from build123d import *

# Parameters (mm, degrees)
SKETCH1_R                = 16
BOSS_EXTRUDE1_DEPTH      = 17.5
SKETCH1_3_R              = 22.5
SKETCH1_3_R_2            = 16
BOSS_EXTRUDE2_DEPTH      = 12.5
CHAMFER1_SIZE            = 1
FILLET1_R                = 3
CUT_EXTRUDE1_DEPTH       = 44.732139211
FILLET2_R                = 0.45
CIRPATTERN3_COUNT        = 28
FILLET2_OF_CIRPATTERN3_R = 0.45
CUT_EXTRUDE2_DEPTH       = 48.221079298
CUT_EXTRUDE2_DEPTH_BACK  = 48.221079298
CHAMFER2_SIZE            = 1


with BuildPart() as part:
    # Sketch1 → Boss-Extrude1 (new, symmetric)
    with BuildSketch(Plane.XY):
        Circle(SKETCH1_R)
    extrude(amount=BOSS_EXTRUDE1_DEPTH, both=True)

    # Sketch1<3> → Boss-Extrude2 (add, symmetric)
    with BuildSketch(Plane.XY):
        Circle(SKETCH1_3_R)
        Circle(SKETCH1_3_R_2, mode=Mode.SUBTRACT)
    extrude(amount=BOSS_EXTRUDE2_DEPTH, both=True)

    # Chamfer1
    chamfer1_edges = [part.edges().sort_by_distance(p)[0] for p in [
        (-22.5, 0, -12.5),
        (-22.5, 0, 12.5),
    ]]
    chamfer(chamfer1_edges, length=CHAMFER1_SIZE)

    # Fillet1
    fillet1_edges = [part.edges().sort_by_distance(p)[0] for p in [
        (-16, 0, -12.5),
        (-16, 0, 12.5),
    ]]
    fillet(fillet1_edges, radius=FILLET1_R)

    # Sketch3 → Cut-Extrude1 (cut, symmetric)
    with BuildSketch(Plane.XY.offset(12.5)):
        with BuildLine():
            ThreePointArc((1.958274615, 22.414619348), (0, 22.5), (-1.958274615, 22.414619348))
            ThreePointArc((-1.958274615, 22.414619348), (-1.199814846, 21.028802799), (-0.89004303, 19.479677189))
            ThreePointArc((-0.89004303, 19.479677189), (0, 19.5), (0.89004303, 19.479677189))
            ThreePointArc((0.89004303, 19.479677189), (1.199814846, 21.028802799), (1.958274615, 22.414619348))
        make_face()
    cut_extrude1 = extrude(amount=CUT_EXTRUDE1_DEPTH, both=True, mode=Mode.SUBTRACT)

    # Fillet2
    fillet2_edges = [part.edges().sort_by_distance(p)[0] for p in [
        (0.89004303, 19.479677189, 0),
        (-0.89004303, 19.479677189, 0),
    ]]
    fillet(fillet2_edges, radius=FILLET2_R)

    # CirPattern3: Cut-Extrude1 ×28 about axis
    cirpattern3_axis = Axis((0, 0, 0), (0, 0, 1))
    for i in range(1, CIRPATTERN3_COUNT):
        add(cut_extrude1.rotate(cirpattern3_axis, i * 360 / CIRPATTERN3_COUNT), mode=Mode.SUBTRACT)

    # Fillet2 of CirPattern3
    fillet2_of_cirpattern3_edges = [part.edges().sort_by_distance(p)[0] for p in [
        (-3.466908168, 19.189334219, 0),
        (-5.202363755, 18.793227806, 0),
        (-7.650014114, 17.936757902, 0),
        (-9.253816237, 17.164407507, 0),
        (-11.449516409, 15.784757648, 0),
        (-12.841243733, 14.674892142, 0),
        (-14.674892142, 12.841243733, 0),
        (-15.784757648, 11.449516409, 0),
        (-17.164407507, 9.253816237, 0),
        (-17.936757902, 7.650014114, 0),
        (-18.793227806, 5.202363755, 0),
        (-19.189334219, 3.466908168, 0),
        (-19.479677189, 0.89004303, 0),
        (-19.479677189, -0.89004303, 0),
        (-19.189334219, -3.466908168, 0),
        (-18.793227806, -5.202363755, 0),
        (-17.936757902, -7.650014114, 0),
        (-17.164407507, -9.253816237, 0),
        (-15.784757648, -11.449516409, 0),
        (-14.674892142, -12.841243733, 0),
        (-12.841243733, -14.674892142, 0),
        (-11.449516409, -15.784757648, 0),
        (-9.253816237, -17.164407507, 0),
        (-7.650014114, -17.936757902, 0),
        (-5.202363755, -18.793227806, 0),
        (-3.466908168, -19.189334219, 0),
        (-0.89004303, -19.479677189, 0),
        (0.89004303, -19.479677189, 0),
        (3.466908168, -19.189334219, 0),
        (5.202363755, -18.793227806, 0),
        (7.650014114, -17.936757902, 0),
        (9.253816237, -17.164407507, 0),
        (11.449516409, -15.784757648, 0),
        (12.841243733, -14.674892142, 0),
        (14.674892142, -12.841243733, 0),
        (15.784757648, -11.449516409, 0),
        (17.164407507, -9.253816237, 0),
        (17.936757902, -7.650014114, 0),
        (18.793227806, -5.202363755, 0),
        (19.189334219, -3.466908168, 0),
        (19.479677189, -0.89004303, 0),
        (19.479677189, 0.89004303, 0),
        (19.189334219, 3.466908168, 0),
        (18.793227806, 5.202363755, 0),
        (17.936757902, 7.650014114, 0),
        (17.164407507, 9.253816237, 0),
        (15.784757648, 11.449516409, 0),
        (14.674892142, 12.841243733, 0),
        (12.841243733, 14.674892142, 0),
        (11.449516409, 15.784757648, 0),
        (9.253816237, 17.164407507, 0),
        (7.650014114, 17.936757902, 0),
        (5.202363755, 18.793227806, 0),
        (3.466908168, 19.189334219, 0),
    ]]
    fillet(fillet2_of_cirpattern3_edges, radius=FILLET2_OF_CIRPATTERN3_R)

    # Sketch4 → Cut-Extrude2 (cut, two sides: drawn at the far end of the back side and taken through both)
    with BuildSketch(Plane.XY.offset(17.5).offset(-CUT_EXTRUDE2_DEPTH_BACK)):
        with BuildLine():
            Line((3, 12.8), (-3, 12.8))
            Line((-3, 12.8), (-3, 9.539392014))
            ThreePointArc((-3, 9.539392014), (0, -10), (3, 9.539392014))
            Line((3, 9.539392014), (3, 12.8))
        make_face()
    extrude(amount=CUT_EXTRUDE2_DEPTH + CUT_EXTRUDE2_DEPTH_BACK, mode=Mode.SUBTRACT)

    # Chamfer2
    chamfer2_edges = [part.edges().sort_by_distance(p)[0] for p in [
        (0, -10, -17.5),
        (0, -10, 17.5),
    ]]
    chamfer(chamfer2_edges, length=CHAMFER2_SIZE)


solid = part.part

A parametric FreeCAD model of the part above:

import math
import FreeCAD as App
import Part
import Sketcher
from FreeCAD import Vector
Q = App.Units.Quantity


def edges_at(feature, points):
    """Names of the edges that pass closest to the given points."""
    edges = feature.Shape.Edges
    near = lambda p: min(range(len(edges)), key=lambda i: edges[i].distToShape(Part.Vertex(*p))[0])
    return sorted({f"Edge{near(p) + 1}" for p in points})

doc = App.newDocument("Part")
body = doc.addObject("PartDesign::Body", "Body")

sketch1 = body.newObject("Sketcher::SketchObject", "Sketch")
sketch1.AttachmentSupport = (doc.getObject("XY_Plane"), [""])
sketch1.MapMode = "FlatFace"
sketch1.addGeometry(Part.Circle(Vector(0, 0, 0), Vector(0, 0, 1), 16), False)
sketch1.addConstraint([
    Sketcher.Constraint("Coincident", 0, 3, -1, 1),
    Sketcher.Constraint("Diameter", 0, Q("32 mm")),
])
pad1 = body.newObject("PartDesign::Pad", "Pad")
pad1.Profile = sketch1
pad1.Length = 35
pad1.Midplane = True

sketch2 = body.newObject("Sketcher::SketchObject", "Sketch001")
sketch2.AttachmentSupport = (doc.getObject("XY_Plane"), [""])
sketch2.MapMode = "FlatFace"
sketch2.addGeometry([
    Part.Circle(Vector(0, 0, 0), Vector(0, 0, 1), 22),
    Part.Circle(Vector(0, 0, 0), Vector(0, 0, 1), 16),
], False)
sketch2.addConstraint([
    Sketcher.Constraint("Coincident", 0, 3, -1, 1),
    Sketcher.Constraint("Coincident", 1, 3, -1, 1),
    Sketcher.Constraint("Diameter", 0, Q("45 mm")),
    Sketcher.Constraint("Diameter", 1, Q("32 mm")),
])
pad2 = body.newObject("PartDesign::Pad", "Pad001")
pad2.Profile = sketch2
pad2.Length = 25
pad2.Midplane = True
doc.recompute()

chamfer = body.newObject("PartDesign::Chamfer", "Chamfer")
chamfer.Base = (pad2, edges_at(pad2, [(-22.5, 0, -12.5), (-22.5, 0, 12.5)]))
chamfer.Size = 1
doc.recompute()

fillet = body.newObject("PartDesign::Fillet", "Fillet")
fillet.Base = (chamfer, edges_at(chamfer, [(-16, 0, -12.5), (-16, 0, 12.5)]))
fillet.Radius = 3

sketch3 = body.newObject("Sketcher::SketchObject", "Sketch002")
sketch3.AttachmentSupport = (doc.getObject("XY_Plane"), [""])
sketch3.MapMode = "FlatFace"
sketch3.AttachmentOffset = App.Placement(Vector(0, 0, 12.5), App.Rotation())
sketch3.addGeometry([
    Part.ArcOfCircle(Part.Circle(Vector(0, 0, 0), Vector(0, 0, 1), 22.5), math.radians(85.01), math.radians(94.99)),
    Part.ArcOfCircle(Part.Circle(Vector(-6.1, 19.2, 0), Vector(0, 0, 1), 5.2), math.radians(3), math.radians(37)),
    Part.ArcOfCircle(Part.Circle(Vector(0, 0, 0), Vector(0, 0, 1), 19.5), math.radians(87.38), math.radians(92.62)),
    Part.ArcOfCircle(Part.Circle(Vector(6.1, 19.2, 0), Vector(0, 0, 1), 5.2), math.radians(143), math.radians(177)),
], False)
sketch3.addConstraint([
    Sketcher.Constraint("Coincident", 0, 2, 1, 2),
    Sketcher.Constraint("Coincident", 1, 1, 2, 2),
    Sketcher.Constraint("Coincident", 2, 1, 3, 2),
    Sketcher.Constraint("Coincident", 3, 1, 0, 1),
    Sketcher.Constraint("Coincident", 0, 3, -1, 1),
    Sketcher.Constraint("Coincident", 2, 3, -1, 1),
    Sketcher.Constraint("Equal", 1, 3),
    Sketcher.Constraint("Symmetric", 1, 3, 3, 3, -2),
    Sketcher.Constraint("Radius", 0, Q("22.5 mm")),
    Sketcher.Constraint("Radius", 2, Q("19.5 mm")),
    Sketcher.Constraint("Radius", 1, Q("5.226877 mm")),
    Sketcher.Constraint("DistanceY", -1, 1, 0, 2, Q("22.414619 mm")),
    Sketcher.Constraint("DistanceX", 0, 2, 1, 1, Q("1.068232 mm")),
])
pocket1 = body.newObject("PartDesign::Pocket", "Pocket")
pocket1.Profile = sketch3
pocket1.Length = 89.464278
pocket1.Midplane = True
doc.recompute()

fillet2 = body.newObject("PartDesign::Fillet", "Fillet001")
fillet2.Base = (pocket1, edges_at(pocket1, [(0.89, 19.48, 0), (-0.89, 19.48, 0)]))
fillet2.Radius = 0.45
doc.recompute()

polarpattern = body.newObject("PartDesign::PolarPattern", "PolarPattern")
polarpattern.Originals = [pocket1]
polarpattern.Axis = (doc.getObject("Z_Axis"), [""])
polarpattern.Angle = 360
polarpattern.Occurrences = 28
body.Tip = polarpattern
doc.recompute()

fillet3 = body.newObject("PartDesign::Fillet", "Fillet002")
fillet3.Base = (polarpattern, edges_at(polarpattern, [
    (-3.467, 19.189, 0),
    (-5.202, 18.793, 0),
    (-7.65, 17.937, 0),
    (-9.254, 17.164, 0),
    (-11.45, 15.785, 0),
    (-12.841, 14.675, 0),
    (-14.675, 12.841, 0),
    (-15.785, 11.45, 0),
    (-17.164, 9.254, 0),
    (-17.937, 7.65, 0),
    (-18.793, 5.202, 0),
    (-19.189, 3.467, 0),
    (-19.48, 0.89, 0),
    (-19.48, -0.89, 0),
    (-19.189, -3.467, 0),
    (-18.793, -5.202, 0),
    (-17.937, -7.65, 0),
    (-17.164, -9.254, 0),
    (-15.785, -11.45, 0),
    (-14.675, -12.841, 0),
    (-12.841, -14.675, 0),
    (-11.45, -15.785, 0),
    (-9.254, -17.164, 0),
    (-7.65, -17.937, 0),
    (-5.202, -18.793, 0),
    (-3.467, -19.189, 0),
    (-0.89, -19.48, 0),
    (0.89, -19.48, 0),
    (3.467, -19.189, 0),
    (5.202, -18.793, 0),
    (7.65, -17.937, 0),
    (9.254, -17.164, 0),
    (11.45, -15.785, 0),
    (12.841, -14.675, 0),
    (14.675, -12.841, 0),
    (15.785, -11.45, 0),
    (17.164, -9.254, 0),
    (17.937, -7.65, 0),
    (18.793, -5.202, 0),
    (19.189, -3.467, 0),
    (19.48, -0.89, 0),
    (19.48, 0.89, 0),
    (19.189, 3.467, 0),
    (18.793, 5.202, 0),
    (17.937, 7.65, 0),
    (17.164, 9.254, 0),
    (15.785, 11.45, 0),
    (14.675, 12.841, 0),
    (12.841, 14.675, 0),
    (11.45, 15.785, 0),
    (9.254, 17.164, 0),
    (7.65, 17.937, 0),
    (5.202, 18.793, 0),
    (3.467, 19.189, 0),
]))
fillet3.Radius = 0.45

sketch4 = body.newObject("Sketcher::SketchObject", "Sketch003")
sketch4.AttachmentSupport = (doc.getObject("XY_Plane"), [""])
sketch4.MapMode = "FlatFace"
sketch4.AttachmentOffset = App.Placement(Vector(0, 0, 17.5), App.Rotation())
sketch4.addGeometry([
    Part.LineSegment(Vector(3, 12.8, 0), Vector(-3, 12.8, 0)),
    Part.LineSegment(Vector(-3, 12.8, 0), Vector(-3, 9.5, 0)),
    Part.ArcOfCircle(Part.Circle(Vector(0, 0, 0), Vector(0, 0, 1), 10), math.radians(107), math.radians(433)),
    Part.LineSegment(Vector(3, 9.5, 0), Vector(3, 12.8, 0)),
], False)
sketch4.addConstraint([
    Sketcher.Constraint("Coincident", 0, 2, 1, 1),
    Sketcher.Constraint("Coincident", 1, 2, 2, 1),
    Sketcher.Constraint("Coincident", 2, 2, 3, 1),
    Sketcher.Constraint("Coincident", 3, 2, 0, 1),
    Sketcher.Constraint("Horizontal", 0),
    Sketcher.Constraint("Vertical", 1),
    Sketcher.Constraint("Vertical", 3),
    Sketcher.Constraint("Coincident", 2, 3, -1, 1),
    Sketcher.Constraint("Horizontal", 1, 2, 2, 2),
    Sketcher.Constraint("Radius", 2, Q("10 mm")),
    Sketcher.Constraint("DistanceX", 0, 2, 0, 1, Q("6 mm")),
    Sketcher.Constraint("DistanceY", -1, 1, 0, 2, Q("12.8 mm")),
])
pocket2 = body.newObject("PartDesign::Pocket", "Pocket001")
pocket2.Profile = sketch4
pocket2.Type = "ThroughAll"
pocket2.Midplane = True
doc.recompute()

chamfer2 = body.newObject("PartDesign::Chamfer", "Chamfer001")
chamfer2.Base = (pocket2, edges_at(pocket2, [(0, -10, -17.5), (0, -10, 17.5)]))
chamfer2.Size = 1

doc.recompute()
